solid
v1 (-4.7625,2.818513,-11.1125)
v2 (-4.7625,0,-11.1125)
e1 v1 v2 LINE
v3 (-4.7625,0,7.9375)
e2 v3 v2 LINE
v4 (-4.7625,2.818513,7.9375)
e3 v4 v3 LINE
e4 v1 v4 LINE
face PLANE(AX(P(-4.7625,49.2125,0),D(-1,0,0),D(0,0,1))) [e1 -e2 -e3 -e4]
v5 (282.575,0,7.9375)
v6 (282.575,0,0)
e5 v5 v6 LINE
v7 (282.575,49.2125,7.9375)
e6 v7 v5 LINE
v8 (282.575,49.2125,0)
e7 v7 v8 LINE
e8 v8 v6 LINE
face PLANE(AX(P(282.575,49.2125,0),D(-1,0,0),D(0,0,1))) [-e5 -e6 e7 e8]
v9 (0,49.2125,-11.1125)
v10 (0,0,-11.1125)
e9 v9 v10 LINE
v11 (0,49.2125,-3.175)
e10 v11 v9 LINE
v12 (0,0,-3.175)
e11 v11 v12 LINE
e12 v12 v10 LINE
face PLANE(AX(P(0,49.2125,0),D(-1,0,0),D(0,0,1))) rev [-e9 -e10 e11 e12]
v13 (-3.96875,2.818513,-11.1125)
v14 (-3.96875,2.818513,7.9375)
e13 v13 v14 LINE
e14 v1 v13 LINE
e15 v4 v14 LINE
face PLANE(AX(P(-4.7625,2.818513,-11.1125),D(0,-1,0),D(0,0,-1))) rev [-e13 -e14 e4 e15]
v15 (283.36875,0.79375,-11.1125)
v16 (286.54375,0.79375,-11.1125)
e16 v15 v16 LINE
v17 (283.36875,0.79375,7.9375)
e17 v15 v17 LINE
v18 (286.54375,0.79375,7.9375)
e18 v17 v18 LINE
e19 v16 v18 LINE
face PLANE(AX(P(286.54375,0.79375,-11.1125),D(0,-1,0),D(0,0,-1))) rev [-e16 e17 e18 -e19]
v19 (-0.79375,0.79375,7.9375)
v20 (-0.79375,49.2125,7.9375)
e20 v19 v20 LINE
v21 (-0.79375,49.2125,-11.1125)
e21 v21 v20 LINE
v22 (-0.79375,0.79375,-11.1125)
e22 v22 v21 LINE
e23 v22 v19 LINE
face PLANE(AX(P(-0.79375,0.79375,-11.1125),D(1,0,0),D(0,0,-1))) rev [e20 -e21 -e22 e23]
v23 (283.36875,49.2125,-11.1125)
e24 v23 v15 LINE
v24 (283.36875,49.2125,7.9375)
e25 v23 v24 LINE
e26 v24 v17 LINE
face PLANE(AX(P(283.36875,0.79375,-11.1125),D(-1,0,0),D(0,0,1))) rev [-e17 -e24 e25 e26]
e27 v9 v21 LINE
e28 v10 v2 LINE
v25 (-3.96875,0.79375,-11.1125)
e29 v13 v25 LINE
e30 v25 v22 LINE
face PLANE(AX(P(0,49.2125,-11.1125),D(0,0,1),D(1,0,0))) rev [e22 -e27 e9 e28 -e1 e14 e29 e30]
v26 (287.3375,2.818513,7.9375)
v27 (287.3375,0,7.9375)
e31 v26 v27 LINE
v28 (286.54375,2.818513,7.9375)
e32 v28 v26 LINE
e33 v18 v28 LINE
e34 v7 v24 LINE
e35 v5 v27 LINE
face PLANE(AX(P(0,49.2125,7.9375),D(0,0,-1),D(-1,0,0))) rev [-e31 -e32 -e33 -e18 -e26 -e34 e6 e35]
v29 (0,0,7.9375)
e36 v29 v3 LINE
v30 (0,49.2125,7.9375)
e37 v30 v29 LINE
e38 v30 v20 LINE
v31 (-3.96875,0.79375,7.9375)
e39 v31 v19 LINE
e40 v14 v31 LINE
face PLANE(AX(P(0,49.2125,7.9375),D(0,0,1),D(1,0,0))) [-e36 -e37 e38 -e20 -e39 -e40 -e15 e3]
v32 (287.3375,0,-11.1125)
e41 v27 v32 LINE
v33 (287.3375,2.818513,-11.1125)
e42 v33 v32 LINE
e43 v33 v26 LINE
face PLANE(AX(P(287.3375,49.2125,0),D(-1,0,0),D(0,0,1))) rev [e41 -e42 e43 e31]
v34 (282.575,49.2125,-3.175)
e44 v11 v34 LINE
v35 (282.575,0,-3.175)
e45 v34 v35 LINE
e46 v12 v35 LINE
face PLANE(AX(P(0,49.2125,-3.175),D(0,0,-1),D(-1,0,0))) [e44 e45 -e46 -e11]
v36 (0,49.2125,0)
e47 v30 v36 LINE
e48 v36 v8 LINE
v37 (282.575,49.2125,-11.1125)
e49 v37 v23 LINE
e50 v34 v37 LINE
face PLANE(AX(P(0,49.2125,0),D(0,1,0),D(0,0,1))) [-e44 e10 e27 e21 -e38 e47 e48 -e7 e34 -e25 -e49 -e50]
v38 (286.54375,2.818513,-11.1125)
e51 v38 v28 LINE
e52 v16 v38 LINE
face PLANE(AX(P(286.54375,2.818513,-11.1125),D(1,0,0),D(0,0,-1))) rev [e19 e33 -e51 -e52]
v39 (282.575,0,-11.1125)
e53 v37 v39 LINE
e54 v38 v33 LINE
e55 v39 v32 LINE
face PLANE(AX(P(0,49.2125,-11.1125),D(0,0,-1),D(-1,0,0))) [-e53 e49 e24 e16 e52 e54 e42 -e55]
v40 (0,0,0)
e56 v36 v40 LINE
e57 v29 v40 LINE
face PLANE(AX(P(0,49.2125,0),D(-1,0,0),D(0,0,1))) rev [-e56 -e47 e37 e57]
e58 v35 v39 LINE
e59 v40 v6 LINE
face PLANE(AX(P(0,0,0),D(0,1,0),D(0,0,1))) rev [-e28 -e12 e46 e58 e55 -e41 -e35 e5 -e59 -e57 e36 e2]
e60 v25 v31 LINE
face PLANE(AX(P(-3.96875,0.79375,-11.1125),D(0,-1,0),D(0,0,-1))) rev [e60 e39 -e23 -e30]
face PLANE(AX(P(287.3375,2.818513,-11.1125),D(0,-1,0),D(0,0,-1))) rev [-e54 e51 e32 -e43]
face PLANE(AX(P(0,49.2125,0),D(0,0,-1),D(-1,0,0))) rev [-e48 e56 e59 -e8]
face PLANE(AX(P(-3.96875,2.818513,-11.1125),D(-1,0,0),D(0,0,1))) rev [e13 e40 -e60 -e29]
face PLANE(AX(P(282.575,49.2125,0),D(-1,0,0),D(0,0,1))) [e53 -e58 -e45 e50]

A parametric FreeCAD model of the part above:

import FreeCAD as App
import Part
import Sketcher

V = App.Vector
Q = App.Units.Quantity

doc = App.newDocument("Part")
body = doc.addObject("PartDesign::Body", "Body")

# Sketch on XZ plane
sketch1 = body.newObject("Sketcher::SketchObject", "Sketch")
sketch1.AttachmentSupport = (doc.getObject("XZ_Plane"), [""])
sketch1.MapMode = "FlatFace"
sketch1.addGeometry([
    Part.LineSegment(V(0, 0, 0), V(282.6, 0, 0)),  # 0
    Part.LineSegment(V(282.6, 0, 0), V(282.6, 7.9, 0)),  # 1
    Part.LineSegment(V(282.6, 7.9, 0), V(287.3, 7.9, 0)),  # 2
    Part.LineSegment(V(287.3, 7.9, 0), V(287.3, -11.1, 0)),  # 3
    Part.LineSegment(V(287.3, -11.1, 0), V(282.6, -11.1, 0)),  # 4
    Part.LineSegment(V(282.6, -11.1, 0), V(282.6, -3.2, 0)),  # 5
    Part.LineSegment(V(282.6, -3.2, 0), V(0, -3.2, 0)),  # 6
    Part.LineSegment(V(0, -3.2, 0), V(0, -11.1, 0)),  # 7
    Part.LineSegment(V(0, -11.1, 0), V(-4.8, -11.1, 0)),  # 8
    Part.LineSegment(V(-4.8, -11.1, 0), V(-4.8, 7.9, 0)),  # 9
    Part.LineSegment(V(-4.8, 7.9, 0), V(0, 7.9, 0)),  # 10
    Part.LineSegment(V(0, 7.9, 0), V(0, 0, 0)),  # 11
], False)
sketch1.addConstraint([
    Sketcher.Constraint("Coincident", 0, 2, 1, 1),
    Sketcher.Constraint("Coincident", 1, 2, 2, 1),
    Sketcher.Constraint("Coincident", 2, 2, 3, 1),
    Sketcher.Constraint("Coincident", 3, 2, 4, 1),
    Sketcher.Constraint("Coincident", 4, 2, 5, 1),
    Sketcher.Constraint("Coincident", 5, 2, 6, 1),
    Sketcher.Constraint("Coincident", 6, 2, 7, 1),
    Sketcher.Constraint("Coincident", 7, 2, 8, 1),
    Sketcher.Constraint("Coincident", 8, 2, 9, 1),
    Sketcher.Constraint("Coincident", 9, 2, 10, 1),
    Sketcher.Constraint("Coincident", 10, 2, 11, 1),
    Sketcher.Constraint("Coincident", 11, 2, 0, 1),
    Sketcher.Constraint("Horizontal", 0),
    Sketcher.Constraint("Vertical", 1),
    Sketcher.Constraint("Horizontal", 2),
    Sketcher.Constraint("Vertical", 3),
    Sketcher.Constraint("Horizontal", 4),
    Sketcher.Constraint("Vertical", 5),
    Sketcher.Constraint("Horizontal", 6),
    Sketcher.Constraint("Vertical", 7),
    Sketcher.Constraint("Horizontal", 8),
    Sketcher.Constraint("Vertical", 9),
    Sketcher.Constraint("Horizontal", 10),
    Sketcher.Constraint("Vertical", 11),
    Sketcher.Constraint("Coincident", 11, 2, -1, 1),
    Sketcher.Constraint("PointOnObject", 6, 2, -2),
    Sketcher.Constraint("Horizontal", 4, 2, 7, 2),
    Sketcher.Constraint("Horizontal", 2, 2, 9, 2),
    Sketcher.Constraint("Vertical", 1, 2, 4, 2),
    Sketcher.Constraint("Equal", 4, 8),
    Sketcher.Constraint("Equal", 1, 5),
    Sketcher.Constraint("DistanceY", 3, 2, 3, 1, Q("0.75 in")),
    Sketcher.Constraint("DistanceX", 0, 1, 0, 2, Q("11.125 in")),
    Sketcher.Constraint("DistanceX", 2, 1, 2, 2, Q("0.1875 in")),
    Sketcher.Constraint("DistanceY", 1, 1, 1, 2, Q("0.3125 in")),
])
pad1 = body.newObject("PartDesign::Pad", "Pad")
pad1.Profile = sketch1
pad1.Length = Q("1.9375 in")
pad1.Reversed = True

# Sketch on XY plane
sketch2 = body.newObject("Sketcher::SketchObject", "Sketch001")
sketch2.AttachmentSupport = (doc.getObject("XY_Plane"), [""])
sketch2.MapMode = "FlatFace"
sketch2.AttachmentOffset = App.Placement(V(0, 0, 0.3125 * 25.4), App.Rotation())
sketch2.addGeometry([
    Part.LineSegment(V(-4.8, 2.8, 0), V(-4, 2.8, 0)),  # 0
    Part.LineSegment(V(-4, 2.8, 0), V(-4, 0.8, 0)),  # 1
    Part.LineSegment(V(-4, 0.8, 0), V(-0.8, 0.8, 0)),  # 2
    Part.LineSegment(V(-0.8, 0.8, 0), V(-0.8, 49.2, 0)),  # 3
    Part.LineSegment(V(-0.8, 49.2, 0), V(-4.8, 49.2, 0)),  # 4
    Part.LineSegment(V(-4.8, 49.2, 0), V(-4.8, 2.8, 0)),  # 5
    Part.LineSegment(V(286.5, 2.8, 0), V(287.3, 2.8, 0)),  # 6
    Part.LineSegment(V(287.3, 2.8, 0), V(287.3, 49.2, 0)),  # 7
    Part.LineSegment(V(287.3, 49.2, 0), V(283.4, 49.2, 0)),  # 8
    Part.LineSegment(V(283.4, 49.2, 0), V(283.4, 0.8, 0)),  # 9
    Part.LineSegment(V(283.4, 0.8, 0), V(286.5, 0.8, 0)),  # 10
    Part.LineSegment(V(286.5, 0.8, 0), V(286.5, 2.8, 0)),  # 11
], False)
sketch2.addConstraint([
    Sketcher.Constraint("Coincident", 0, 2, 1, 1),
    Sketcher.Constraint("Coincident", 1, 2, 2, 1),
    Sketcher.Constraint("Coincident", 2, 2, 3, 1),
    Sketcher.Constraint("Coincident", 3, 2, 4, 1),
    Sketcher.Constraint("Coincident", 4, 2, 5, 1),
    Sketcher.Constraint("Coincident", 5, 2, 0, 1),
    Sketcher.Constraint("Coincident", 6, 2, 7, 1),
    Sketcher.Constraint("Coincident", 7, 2, 8, 1),
    Sketcher.Constraint("Coincident", 8, 2, 9, 1),
    Sketcher.Constraint("Coincident", 9, 2, 10, 1),
    Sketcher.Constraint("Coincident", 10, 2, 11, 1),
    Sketcher.Constraint("Coincident", 11, 2, 6, 1),
    Sketcher.Constraint("Horizontal", 0),
    Sketcher.Constraint("Vertical", 1),
    Sketcher.Constraint("Horizontal", 2),
    Sketcher.Constraint("Vertical", 3),
    Sketcher.Constraint("Horizontal", 4),
    Sketcher.Constraint("Vertical", 5),
    Sketcher.Constraint("Horizontal", 6),
    Sketcher.Constraint("Vertical", 7),
    Sketcher.Constraint("Horizontal", 8),
    Sketcher.Constraint("Vertical", 9),
    Sketcher.Constraint("Horizontal", 10),
    Sketcher.Constraint("Vertical", 11),
    Sketcher.Constraint("Horizontal", 5, 2, 6, 2),
    Sketcher.Constraint("Horizontal", 4, 2, 7, 2),
    Sketcher.Constraint("Horizontal", 2, 2, 9, 2),
    Sketcher.Constraint("Equal", 0, 6),
    Sketcher.Constraint("Equal", 4, 8),
    Sketcher.Constraint("DistanceX", 5, 2, 6, 2, Q("11.5 in")),
    Sketcher.Constraint("DistanceX", 0, 1, 0, 2, Q("0.03125 in")),
    Sketcher.Constraint("DistanceX", 2, 1, 2, 2, Q("0.125 in")),
    Sketcher.Constraint("DistanceY", 3, 1, 3, 2, Q("1.90625 in")),
    Sketcher.Constraint("DistanceX", 0, 2, -1, 1, Q("0.15625 in")),
    Sketcher.Constraint("DistanceY", -1, 1, 1, 2, Q("0.03125 in")),
    Sketcher.Constraint("DistanceY", 1, 2, 1, 1, 2.024763),
])
pocket1 = body.newObject("PartDesign::Pocket", "Pocket")
pocket1.Profile = sketch2
pocket1.Type = "ThroughAll"

doc.recompute()
